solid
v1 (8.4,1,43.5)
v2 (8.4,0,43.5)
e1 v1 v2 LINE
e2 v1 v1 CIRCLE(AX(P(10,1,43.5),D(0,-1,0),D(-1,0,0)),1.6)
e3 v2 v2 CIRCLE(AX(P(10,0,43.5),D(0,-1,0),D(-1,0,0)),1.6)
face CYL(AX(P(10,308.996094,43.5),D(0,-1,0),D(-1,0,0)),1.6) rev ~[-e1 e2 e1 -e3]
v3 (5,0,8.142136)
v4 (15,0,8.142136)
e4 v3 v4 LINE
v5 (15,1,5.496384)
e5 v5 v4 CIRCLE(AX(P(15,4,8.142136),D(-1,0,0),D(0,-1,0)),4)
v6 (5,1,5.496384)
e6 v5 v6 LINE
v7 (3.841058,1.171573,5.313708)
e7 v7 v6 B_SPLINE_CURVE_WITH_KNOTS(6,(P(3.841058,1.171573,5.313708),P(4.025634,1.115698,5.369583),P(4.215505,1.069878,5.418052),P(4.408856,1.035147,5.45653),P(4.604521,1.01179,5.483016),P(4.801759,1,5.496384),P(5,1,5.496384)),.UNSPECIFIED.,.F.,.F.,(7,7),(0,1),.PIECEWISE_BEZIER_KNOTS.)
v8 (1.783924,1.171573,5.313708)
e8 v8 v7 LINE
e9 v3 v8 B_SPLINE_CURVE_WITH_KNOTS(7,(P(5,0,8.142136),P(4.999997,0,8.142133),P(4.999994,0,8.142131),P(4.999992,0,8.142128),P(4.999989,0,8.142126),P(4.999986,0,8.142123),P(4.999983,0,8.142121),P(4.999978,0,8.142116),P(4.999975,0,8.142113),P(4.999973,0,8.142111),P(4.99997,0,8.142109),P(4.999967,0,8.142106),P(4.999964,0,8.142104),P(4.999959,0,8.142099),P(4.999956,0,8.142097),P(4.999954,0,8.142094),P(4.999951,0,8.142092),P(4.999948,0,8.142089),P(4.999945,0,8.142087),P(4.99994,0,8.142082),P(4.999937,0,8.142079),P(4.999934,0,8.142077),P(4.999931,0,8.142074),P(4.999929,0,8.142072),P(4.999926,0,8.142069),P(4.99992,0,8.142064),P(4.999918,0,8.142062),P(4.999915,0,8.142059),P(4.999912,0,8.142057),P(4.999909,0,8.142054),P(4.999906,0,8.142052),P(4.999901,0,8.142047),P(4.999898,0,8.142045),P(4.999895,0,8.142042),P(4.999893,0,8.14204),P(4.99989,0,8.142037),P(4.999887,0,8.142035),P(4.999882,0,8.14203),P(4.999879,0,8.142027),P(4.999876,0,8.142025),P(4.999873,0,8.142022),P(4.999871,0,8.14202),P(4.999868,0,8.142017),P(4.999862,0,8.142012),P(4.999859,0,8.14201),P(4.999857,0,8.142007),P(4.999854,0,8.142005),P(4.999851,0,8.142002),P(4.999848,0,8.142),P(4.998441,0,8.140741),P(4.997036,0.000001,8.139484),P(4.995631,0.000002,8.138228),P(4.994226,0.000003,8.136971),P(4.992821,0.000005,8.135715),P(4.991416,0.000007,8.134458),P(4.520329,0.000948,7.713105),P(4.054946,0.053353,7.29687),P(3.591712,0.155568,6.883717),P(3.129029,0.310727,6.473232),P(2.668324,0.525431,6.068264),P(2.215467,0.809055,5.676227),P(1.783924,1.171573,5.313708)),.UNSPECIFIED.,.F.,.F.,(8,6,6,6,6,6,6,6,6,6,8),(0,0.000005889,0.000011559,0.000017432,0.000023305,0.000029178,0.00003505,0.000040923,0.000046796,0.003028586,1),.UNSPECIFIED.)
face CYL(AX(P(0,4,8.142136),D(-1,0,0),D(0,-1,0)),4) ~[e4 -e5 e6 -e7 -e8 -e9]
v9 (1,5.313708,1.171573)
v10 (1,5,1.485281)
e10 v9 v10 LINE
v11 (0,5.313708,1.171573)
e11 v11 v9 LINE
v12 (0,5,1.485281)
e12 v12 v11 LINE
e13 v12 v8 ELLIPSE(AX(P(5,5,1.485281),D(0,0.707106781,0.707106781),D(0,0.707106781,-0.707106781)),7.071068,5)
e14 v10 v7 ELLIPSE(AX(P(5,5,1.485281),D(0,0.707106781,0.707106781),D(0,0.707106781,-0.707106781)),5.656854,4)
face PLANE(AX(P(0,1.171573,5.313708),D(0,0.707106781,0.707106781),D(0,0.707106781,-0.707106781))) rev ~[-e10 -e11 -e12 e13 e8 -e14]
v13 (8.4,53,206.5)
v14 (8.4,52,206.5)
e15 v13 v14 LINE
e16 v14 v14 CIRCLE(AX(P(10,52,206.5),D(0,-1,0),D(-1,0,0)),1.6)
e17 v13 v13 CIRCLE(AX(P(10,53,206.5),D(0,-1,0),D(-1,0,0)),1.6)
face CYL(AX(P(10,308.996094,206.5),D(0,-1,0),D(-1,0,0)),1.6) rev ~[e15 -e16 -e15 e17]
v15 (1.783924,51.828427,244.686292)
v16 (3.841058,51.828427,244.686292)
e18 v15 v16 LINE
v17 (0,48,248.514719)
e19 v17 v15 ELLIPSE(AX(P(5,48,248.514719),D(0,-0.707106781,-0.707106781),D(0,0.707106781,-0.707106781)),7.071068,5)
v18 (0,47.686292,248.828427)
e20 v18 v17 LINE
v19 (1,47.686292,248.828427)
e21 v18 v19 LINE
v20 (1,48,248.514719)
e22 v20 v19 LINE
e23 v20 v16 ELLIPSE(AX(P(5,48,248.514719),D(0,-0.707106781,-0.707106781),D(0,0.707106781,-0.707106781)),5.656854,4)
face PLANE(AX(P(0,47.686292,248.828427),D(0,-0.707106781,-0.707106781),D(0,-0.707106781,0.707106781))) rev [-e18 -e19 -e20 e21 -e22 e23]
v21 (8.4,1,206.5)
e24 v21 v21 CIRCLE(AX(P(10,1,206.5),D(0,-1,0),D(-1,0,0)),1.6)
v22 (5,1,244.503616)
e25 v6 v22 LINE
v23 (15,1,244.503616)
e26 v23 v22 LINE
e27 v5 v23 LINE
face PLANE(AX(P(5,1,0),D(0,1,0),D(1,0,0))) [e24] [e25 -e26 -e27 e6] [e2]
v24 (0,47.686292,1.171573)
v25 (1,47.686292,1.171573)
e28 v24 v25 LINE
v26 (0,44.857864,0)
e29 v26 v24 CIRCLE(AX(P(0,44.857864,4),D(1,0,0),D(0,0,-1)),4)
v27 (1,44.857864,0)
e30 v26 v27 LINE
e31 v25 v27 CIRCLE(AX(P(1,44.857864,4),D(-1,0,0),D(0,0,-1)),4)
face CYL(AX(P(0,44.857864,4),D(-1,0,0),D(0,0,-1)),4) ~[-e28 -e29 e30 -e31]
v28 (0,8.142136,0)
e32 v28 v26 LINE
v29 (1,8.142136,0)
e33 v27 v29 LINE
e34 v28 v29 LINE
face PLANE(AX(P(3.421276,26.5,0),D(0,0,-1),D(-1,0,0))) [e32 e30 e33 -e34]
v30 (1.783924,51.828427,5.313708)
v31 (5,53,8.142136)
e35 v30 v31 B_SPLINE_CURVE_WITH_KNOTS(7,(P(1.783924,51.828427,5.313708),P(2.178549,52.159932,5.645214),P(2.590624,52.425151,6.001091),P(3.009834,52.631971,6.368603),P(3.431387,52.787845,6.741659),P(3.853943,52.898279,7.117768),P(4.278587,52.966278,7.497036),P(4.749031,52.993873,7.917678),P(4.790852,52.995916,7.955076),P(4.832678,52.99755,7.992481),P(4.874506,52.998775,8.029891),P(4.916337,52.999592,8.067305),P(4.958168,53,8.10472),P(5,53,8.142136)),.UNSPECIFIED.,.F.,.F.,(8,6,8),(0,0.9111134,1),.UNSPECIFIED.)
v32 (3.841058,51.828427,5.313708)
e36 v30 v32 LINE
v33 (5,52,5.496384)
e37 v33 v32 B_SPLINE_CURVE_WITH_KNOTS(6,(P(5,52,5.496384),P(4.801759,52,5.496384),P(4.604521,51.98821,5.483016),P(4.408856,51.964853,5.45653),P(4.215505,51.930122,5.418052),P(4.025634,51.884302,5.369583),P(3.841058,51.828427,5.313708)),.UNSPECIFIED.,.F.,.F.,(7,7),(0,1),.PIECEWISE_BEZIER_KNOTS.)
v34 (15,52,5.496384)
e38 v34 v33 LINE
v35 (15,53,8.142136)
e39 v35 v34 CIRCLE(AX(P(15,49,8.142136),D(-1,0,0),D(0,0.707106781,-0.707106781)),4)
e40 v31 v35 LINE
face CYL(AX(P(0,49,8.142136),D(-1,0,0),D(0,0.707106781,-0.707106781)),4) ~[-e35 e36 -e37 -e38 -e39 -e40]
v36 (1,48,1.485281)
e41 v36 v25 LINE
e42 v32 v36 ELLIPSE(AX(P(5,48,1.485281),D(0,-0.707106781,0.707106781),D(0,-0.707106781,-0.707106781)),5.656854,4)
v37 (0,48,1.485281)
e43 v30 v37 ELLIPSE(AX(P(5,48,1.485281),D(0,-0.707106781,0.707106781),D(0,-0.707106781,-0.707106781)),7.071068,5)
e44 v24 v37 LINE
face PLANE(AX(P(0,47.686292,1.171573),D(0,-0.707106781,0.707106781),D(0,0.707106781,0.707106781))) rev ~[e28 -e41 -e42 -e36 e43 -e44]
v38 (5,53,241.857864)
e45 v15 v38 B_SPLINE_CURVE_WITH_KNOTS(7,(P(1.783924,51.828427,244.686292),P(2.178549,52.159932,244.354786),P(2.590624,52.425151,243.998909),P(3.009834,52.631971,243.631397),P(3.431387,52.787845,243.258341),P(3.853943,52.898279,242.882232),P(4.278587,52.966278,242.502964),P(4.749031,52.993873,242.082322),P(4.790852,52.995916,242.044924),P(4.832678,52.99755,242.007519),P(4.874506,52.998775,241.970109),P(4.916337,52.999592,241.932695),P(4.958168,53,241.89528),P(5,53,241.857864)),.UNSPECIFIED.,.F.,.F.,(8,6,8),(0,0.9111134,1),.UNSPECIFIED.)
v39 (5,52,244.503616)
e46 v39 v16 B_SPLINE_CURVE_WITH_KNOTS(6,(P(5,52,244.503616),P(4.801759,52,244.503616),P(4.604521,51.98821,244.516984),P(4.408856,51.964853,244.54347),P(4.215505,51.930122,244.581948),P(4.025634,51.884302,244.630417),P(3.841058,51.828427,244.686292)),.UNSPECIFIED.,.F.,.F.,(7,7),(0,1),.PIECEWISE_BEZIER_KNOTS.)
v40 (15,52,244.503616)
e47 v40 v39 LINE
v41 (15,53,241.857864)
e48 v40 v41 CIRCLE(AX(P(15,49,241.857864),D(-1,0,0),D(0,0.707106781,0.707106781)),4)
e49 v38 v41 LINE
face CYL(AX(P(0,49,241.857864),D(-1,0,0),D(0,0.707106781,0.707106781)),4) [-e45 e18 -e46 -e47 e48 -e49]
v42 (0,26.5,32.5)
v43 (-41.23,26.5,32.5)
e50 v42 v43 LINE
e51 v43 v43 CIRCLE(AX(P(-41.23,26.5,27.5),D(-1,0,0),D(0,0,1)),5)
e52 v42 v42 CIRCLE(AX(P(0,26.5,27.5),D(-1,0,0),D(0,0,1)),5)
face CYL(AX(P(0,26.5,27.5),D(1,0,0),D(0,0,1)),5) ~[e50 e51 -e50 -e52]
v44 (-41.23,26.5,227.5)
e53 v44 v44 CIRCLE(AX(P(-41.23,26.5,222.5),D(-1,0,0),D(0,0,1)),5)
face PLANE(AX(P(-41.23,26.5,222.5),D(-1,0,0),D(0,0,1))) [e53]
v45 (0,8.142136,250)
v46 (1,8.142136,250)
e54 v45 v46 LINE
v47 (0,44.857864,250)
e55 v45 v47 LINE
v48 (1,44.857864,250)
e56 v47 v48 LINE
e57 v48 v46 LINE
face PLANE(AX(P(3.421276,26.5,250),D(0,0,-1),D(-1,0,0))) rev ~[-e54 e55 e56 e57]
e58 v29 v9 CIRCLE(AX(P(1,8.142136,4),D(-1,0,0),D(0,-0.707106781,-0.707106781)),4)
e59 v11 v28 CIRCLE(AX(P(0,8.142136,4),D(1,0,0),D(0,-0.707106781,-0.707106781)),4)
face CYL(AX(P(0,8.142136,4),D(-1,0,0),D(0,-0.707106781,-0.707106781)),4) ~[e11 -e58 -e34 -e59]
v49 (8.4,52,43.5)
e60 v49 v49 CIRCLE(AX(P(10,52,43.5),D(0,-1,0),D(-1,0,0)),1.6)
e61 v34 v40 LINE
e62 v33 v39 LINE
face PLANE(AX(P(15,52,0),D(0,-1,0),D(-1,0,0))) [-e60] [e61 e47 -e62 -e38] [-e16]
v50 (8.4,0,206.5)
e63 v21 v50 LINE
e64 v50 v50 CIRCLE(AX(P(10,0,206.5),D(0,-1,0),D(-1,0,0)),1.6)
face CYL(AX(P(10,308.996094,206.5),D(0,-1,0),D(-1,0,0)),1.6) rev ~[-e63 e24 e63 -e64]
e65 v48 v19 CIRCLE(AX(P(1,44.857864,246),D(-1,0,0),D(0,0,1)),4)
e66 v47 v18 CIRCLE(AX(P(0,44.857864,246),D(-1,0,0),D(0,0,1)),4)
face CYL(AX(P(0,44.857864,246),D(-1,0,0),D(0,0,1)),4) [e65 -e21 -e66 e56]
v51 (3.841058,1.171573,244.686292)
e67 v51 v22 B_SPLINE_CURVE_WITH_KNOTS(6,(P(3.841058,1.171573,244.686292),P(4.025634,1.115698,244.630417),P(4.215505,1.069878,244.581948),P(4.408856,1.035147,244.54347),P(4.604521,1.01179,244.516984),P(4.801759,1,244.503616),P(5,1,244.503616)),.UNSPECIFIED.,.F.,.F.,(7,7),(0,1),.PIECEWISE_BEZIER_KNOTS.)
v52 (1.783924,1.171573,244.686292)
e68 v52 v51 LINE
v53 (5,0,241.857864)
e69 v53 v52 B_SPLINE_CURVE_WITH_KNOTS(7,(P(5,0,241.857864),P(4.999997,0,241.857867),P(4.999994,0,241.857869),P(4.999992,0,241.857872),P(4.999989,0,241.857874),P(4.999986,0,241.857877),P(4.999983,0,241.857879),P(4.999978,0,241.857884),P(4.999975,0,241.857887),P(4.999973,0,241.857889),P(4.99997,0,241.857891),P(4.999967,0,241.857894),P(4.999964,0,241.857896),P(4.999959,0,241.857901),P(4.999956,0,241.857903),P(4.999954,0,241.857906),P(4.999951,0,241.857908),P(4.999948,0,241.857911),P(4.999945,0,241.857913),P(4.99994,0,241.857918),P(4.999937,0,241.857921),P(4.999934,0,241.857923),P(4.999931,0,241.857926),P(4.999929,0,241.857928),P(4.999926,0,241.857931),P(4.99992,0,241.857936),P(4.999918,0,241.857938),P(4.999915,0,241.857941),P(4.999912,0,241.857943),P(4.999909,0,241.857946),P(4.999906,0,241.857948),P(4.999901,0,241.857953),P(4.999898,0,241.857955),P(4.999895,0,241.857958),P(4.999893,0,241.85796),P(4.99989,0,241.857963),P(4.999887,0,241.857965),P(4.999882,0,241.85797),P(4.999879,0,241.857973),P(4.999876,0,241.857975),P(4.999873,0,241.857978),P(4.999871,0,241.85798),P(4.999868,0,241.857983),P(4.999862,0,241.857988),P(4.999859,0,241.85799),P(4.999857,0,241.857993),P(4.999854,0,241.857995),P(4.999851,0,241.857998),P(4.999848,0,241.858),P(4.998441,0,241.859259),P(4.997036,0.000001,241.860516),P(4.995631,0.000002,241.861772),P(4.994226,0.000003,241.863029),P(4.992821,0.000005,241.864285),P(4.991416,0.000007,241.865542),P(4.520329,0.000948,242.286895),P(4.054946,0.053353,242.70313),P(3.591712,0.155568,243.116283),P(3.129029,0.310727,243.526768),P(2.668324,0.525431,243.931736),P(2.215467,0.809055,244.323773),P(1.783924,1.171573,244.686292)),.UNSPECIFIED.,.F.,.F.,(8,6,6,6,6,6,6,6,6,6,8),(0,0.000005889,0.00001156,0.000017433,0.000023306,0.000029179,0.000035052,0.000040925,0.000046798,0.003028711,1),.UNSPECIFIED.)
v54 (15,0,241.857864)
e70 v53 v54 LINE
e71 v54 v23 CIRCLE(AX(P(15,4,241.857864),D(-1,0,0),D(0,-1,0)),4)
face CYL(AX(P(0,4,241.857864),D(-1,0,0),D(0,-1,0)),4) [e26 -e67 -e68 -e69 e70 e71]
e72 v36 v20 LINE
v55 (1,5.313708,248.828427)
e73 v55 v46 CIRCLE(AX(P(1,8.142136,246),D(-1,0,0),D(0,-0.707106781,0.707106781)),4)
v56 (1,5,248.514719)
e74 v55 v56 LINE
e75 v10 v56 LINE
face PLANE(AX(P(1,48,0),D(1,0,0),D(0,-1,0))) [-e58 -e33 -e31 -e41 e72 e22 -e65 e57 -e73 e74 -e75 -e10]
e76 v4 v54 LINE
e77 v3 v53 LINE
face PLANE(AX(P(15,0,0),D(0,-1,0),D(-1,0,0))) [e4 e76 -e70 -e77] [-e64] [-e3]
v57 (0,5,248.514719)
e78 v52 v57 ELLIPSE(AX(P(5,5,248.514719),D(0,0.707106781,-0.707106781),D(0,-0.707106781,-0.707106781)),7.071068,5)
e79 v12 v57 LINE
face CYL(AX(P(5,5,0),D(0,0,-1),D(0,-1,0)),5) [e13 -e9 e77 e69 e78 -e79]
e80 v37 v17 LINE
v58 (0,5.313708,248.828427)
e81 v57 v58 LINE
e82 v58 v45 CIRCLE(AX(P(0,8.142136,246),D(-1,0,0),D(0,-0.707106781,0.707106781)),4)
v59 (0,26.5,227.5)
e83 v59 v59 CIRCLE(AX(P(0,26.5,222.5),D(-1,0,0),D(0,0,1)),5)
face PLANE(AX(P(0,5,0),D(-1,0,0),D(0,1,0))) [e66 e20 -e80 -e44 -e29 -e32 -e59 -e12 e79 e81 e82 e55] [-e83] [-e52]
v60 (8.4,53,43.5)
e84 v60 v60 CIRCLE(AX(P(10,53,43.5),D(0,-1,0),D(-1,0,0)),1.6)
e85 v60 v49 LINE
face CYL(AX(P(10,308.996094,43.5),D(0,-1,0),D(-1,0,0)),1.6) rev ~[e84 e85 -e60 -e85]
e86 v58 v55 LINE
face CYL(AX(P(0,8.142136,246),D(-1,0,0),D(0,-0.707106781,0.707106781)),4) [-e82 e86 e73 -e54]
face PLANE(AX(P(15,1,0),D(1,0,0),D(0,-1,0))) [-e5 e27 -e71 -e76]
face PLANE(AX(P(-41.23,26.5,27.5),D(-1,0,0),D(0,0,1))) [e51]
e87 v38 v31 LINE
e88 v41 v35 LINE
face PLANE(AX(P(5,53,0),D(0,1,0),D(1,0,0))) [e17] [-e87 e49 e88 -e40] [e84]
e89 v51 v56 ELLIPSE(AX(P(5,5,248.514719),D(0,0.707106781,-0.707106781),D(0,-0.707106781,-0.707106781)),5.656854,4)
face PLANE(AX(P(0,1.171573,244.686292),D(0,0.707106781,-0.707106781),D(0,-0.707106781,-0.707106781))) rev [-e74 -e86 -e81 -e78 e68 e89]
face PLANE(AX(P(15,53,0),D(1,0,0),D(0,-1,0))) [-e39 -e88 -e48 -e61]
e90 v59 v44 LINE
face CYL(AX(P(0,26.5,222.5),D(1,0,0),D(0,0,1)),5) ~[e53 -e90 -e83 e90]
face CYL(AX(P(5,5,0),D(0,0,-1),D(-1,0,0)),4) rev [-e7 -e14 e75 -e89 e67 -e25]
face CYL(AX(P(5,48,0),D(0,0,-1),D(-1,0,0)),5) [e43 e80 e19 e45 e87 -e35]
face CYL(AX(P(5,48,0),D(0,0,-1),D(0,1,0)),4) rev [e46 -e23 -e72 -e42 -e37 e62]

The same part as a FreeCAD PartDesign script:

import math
import FreeCAD as App
import Part
import Sketcher

doc = App.newDocument("Part")
body = doc.addObject("PartDesign::Body", "Body")

# Sketch on XY plane
sketch1 = body.newObject("Sketcher::SketchObject", "Sketch")
sketch1.AttachmentSupport = (doc.getObject("XY_Plane"), [""])
sketch1.MapMode = "FlatFace"
sketch1.addGeometry([
    Part.LineSegment(App.Vector(0, 48, 0), App.Vector(0, 5, 0)),  # 0
    Part.ArcOfCircle(Part.Circle(App.Vector(5, 5, 0), App.Vector(0, 0, 1), 5), math.radians(180), math.radians(270)),  # 1
    Part.LineSegment(App.Vector(5, 0, 0), App.Vector(15, 0, 0)),  # 2
    Part.LineSegment(App.Vector(15, 0, 0), App.Vector(15, 1, 0)),  # 3
    Part.LineSegment(App.Vector(15, 1, 0), App.Vector(5, 1, 0)),  # 4
    Part.ArcOfCircle(Part.Circle(App.Vector(5, 5, 0), App.Vector(0, 0, 1), 4), math.radians(180), math.radians(270)),  # 5
    Part.LineSegment(App.Vector(1, 5, 0), App.Vector(1, 48, 0)),  # 6
    Part.ArcOfCircle(Part.Circle(App.Vector(5, 48, 0), App.Vector(0, 0, 1), 4), math.radians(90), math.radians(180)),  # 7
    Part.LineSegment(App.Vector(5, 52, 0), App.Vector(15, 52, 0)),  # 8
    Part.LineSegment(App.Vector(15, 52, 0), App.Vector(15, 53, 0)),  # 9
    Part.LineSegment(App.Vector(15, 53, 0), App.Vector(5, 53, 0)),  # 10
    Part.ArcOfCircle(Part.Circle(App.Vector(5, 48, 0), App.Vector(0, 0, 1), 5), math.radians(90), math.radians(180)),  # 11
], False)
sketch1.addConstraint([
    Sketcher.Constraint("Tangent", 0, 2, 1, 1),
    Sketcher.Constraint("Tangent", 1, 2, 2, 1),
    Sketcher.Constraint("Coincident", 2, 2, 3, 1),
    Sketcher.Constraint("Coincident", 3, 2, 4, 1),
    Sketcher.Constraint("Tangent", 4, 2, 5, 2),
    Sketcher.Constraint("Tangent", 5, 1, 6, 1),
    Sketcher.Constraint("Tangent", 6, 2, 7, 2),
    Sketcher.Constraint("Tangent", 7, 1, 8, 1),
    Sketcher.Constraint("Coincident", 8, 2, 9, 1),
    Sketcher.Constraint("Coincident", 9, 2, 10, 1),
    Sketcher.Constraint("Tangent", 10, 2, 11, 1),
    Sketcher.Constraint("Tangent", 11, 2, 0, 1),
    Sketcher.Constraint("Vertical", 0),
    Sketcher.Constraint("Horizontal", 2),
    Sketcher.Constraint("Vertical", 3),
    Sketcher.Constraint("Horizontal", 4),
    Sketcher.Constraint("Vertical", 6),
    Sketcher.Constraint("Horizontal", 8),
    Sketcher.Constraint("Vertical", 9),
    Sketcher.Constraint("Horizontal", 10),
    Sketcher.Constraint("Coincident", 5, 3, 1, 3),
    Sketcher.Constraint("Coincident", 11, 3, 7, 3),
    Sketcher.Constraint("Equal", 5, 7),
    Sketcher.Constraint("PointOnObject", 0, 2, -2),
    Sketcher.Constraint("PointOnObject", 1, 2, -1),
    Sketcher.Constraint("Vertical", 3, 2, 8, 2),
    Sketcher.Constraint("Radius", 1, 5.0),
    Sketcher.Constraint("Radius", 5, 4.0),
    Sketcher.Constraint("DistanceX", 2, 1, 2, 2, 10.0),
    Sketcher.Constraint("DistanceY", 0, 2, 0, 1, 43.0),
])
pad1 = body.newObject("PartDesign::Pad", "Pad")
pad1.Profile = sketch1
pad1.Length = 250

# Sketch on YZ plane
sketch2 = body.newObject("Sketcher::SketchObject", "Sketch001")
sketch2.AttachmentSupport = (doc.getObject("YZ_Plane"), [""])
sketch2.MapMode = "FlatFace"
sketch2.addGeometry([
    Part.LineSegment(App.Vector(8.1, 0, 0), App.Vector(-1, 0, 0)),  # 0
    Part.LineSegment(App.Vector(-1, 0, 0), App.Vector(-1, 21.1, 0)),  # 1
    Part.LineSegment(App.Vector(-1, 21.1, 0), App.Vector(0, 21.1, 0)),  # 2
    Part.LineSegment(App.Vector(0, 21.1, 0), App.Vector(0, 8.1, 0)),  # 3
    Part.ArcOfCircle(Part.Circle(App.Vector(4, 8.1, 0), App.Vector(0, 0, 1), 4), math.radians(180), math.radians(225)),  # 4
    Part.LineSegment(App.Vector(1.2, 5.3, 0), App.Vector(5.3, 1.2, 0)),  # 5
    Part.ArcOfCircle(Part.Circle(App.Vector(8.1, 4, 0), App.Vector(0, 0, 1), 4), math.radians(-135), math.radians(-90)),  # 6
    Part.LineSegment(App.Vector(53, 8.1, 0), App.Vector(53, 21.1, 0)),  # 7
    Part.LineSegment(App.Vector(53, 21.1, 0), App.Vector(54, 21.1, 0)),  # 8
    Part.LineSegment(App.Vector(54, 21.1, 0), App.Vector(54, 0, 0)),  # 9
    Part.LineSegment(App.Vector(54, 0, 0), App.Vector(44.9, 0, 0)),  # 10
    Part.ArcOfCircle(Part.Circle(App.Vector(44.9, 4, 0), App.Vector(0, 0, 1), 4), math.radians(-90), math.radians(-45)),  # 11
    Part.LineSegment(App.Vector(47.7, 1.2, 0), App.Vector(51.8, 5.3, 0)),  # 12
    Part.ArcOfCircle(Part.Circle(App.Vector(49, 8.1, 0), App.Vector(0, 0, 1), 4), math.radians(-45), math.radians(0)),  # 13
], False)
sketch2.addConstraint([
    Sketcher.Constraint("Coincident", 0, 2, 1, 1),
    Sketcher.Constraint("Coincident", 1, 2, 2, 1),
    Sketcher.Constraint("Coincident", 2, 2, 3, 1),
    Sketcher.Constraint("Tangent", 3, 2, 4, 1),
    Sketcher.Constraint("Tangent", 4, 2, 5, 1),
    Sketcher.Constraint("Tangent", 5, 2, 6, 1),
    Sketcher.Constraint("Tangent", 6, 2, 0, 1),
    Sketcher.Constraint("Coincident", 7, 2, 8, 1),
    Sketcher.Constraint("Coincident", 8, 2, 9, 1),
    Sketcher.Constraint("Coincident", 9, 2, 10, 1),
    Sketcher.Constraint("Tangent", 10, 2, 11, 1),
    Sketcher.Constraint("Tangent", 11, 2, 12, 1),
    Sketcher.Constraint("Tangent", 12, 2, 13, 1),
    Sketcher.Constraint("Tangent", 13, 2, 7, 1),
    Sketcher.Constraint("Horizontal", 0),
    Sketcher.Constraint("Vertical", 1),
    Sketcher.Constraint("Horizontal", 2),
    Sketcher.Constraint("Vertical", 3),
    Sketcher.Constraint("Vertical", 7),
    Sketcher.Constraint("Horizontal", 8),
    Sketcher.Constraint("Vertical", 9),
    Sketcher.Constraint("Horizontal", 10),
    Sketcher.Constraint("Equal", 4, 6),
    Sketcher.Constraint("Equal", 6, 11),
    Sketcher.Constraint("Equal", 11, 13),
    Sketcher.Constraint("PointOnObject", 0, 2, -1),
    Sketcher.Constraint("PointOnObject", 2, 2, -2),
    Sketcher.Constraint("PointOnObject", 9, 2, -1),
    Sketcher.Constraint("Perpendicular", 5, 12),
    Sketcher.Constraint("Horizontal", 4, 3, 13, 3),
    Sketcher.Constraint("Horizontal", 2, 2, 7, 2),
    Sketcher.Constraint("Horizontal", 5, 2, 11, 2),
    Sketcher.Constraint("Equal", 2, 8),
    Sketcher.Constraint("Radius", 4, 4.0),
    Sketcher.Constraint("DistanceX", 2, 1, 2, 2, 1.0),
    Sketcher.Constraint("DistanceX", -1, 1, 13, 3, 49.0),
    Sketcher.Constraint("DistanceX", 0, 2, 0, 1, 9.142136),
    Sketcher.Constraint("DistanceY", 1, 1, 1, 2, 21.071068),
])
pocket1 = body.newObject("PartDesign::Pocket", "Pocket")
pocket1.Profile = sketch2
pocket1.Type = "ThroughAll"
pocket1.Reversed = True
doc.recompute()

datumplane = body.newObject("PartDesign::Plane", "DatumPlane")
datumplane.AttachmentSupport = (doc.getObject("XY_Plane"), [""])
datumplane.MapMode = "FlatFace"
datumplane.AttachmentOffset = App.Placement(App.Vector(0, 0, 125), App.Rotation())
mirrored = body.newObject("PartDesign::Mirrored", "Mirrored")
mirrored.Originals = [pocket1]
mirrored.MirrorPlane = (datumplane, [""])
body.Tip = mirrored

# Sketch on XZ plane
sketch3 = body.newObject("Sketcher::SketchObject", "Sketch002")
sketch3.AttachmentSupport = (doc.getObject("XZ_Plane"), [""])
sketch3.MapMode = "FlatFace"
sketch3.AttachmentOffset = App.Placement(App.Vector(0, 0, -53), App.Rotation())
sketch3.addGeometry([
    Part.Circle(App.Vector(10, 43.5, 0), App.Vector(0, 0, 1), 1.6),
    Part.Circle(App.Vector(10, 206.5, 0), App.Vector(0, 0, 1), 1.6),
], False)
sketch3.addConstraint([
    Sketcher.Constraint("Equal", 0, 1),
    Sketcher.Constraint("Vertical", 0, 3, 1, 3),
    Sketcher.Constraint("Diameter", 0, 3.2),
    Sketcher.Constraint("DistanceX", -1, 1, 0, 3, 10.0),
    Sketcher.Constraint("DistanceY", 0, 3, 1, 3, 163.0),
    Sketcher.Constraint("DistanceY", -1, 1, 0, 3, 43.5),
])
doc.recompute()
hole = body.newObject("PartDesign::Hole", "Hole")
hole.Profile = sketch3
hole.ThreadType = "None"
hole.Diameter = 3.2
hole.DepthType = "ThroughAll"
hole.Reversed = True

# Sketch on YZ plane
sketch4 = body.newObject("Sketcher::SketchObject", "Sketch003")
sketch4.AttachmentSupport = (doc.getObject("YZ_Plane"), [""])
sketch4.MapMode = "FlatFace"
sketch4.addGeometry([
    Part.Circle(App.Vector(26, 28, 0), App.Vector(0, 0, 1), 5),
    Part.Circle(App.Vector(26, 222, 0), App.Vector(0, 0, 1), 5),
], False)
sketch4.addConstraint([
    Sketcher.Constraint("Equal", 0, 1),
    Sketcher.Constraint("Vertical", 0, 3, 1, 3),
    Sketcher.Constraint("Diameter", 0, 10.0),
    Sketcher.Constraint("DistanceY", 0, 3, 1, 3, 195.0),
    Sketcher.Constraint("DistanceX", -1, 1, 0, 3, 26.5),
    Sketcher.Constraint("DistanceY", -1, 1, 0, 3, 27.5),
])
pad2 = body.newObject("PartDesign::Pad", "Pad001")
pad2.Profile = sketch4
pad2.Length = 41.23
pad2.Reversed = True

doc.recompute()
